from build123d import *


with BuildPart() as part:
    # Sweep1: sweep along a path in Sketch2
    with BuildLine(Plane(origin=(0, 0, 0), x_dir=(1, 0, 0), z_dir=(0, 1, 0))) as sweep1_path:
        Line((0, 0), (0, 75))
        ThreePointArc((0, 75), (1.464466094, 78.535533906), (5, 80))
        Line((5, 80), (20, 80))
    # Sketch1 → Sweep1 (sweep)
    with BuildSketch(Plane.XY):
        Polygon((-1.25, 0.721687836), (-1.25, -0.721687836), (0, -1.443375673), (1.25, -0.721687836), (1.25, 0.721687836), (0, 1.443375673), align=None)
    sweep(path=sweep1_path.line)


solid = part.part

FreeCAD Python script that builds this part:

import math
import FreeCAD as App
import Part
import Sketcher

V = App.Vector
Q = App.Units.Quantity

doc = App.newDocument("Part")
params = doc.addObject("Spreadsheet::Sheet", "Params")
for row, (alias, value) in enumerate([
    ("sketch2_radius", "5 mm"),
    ("sketch2_width", "15 mm"),
    ("sketch2_height", "75 mm"),
], start=1):
    params.set(f"A{row}", alias)
    params.set(f"B{row}", "=" + value)
    params.setAlias(f"B{row}", alias)

body = doc.addObject("PartDesign::Body", "Body")

# Sketch on XY plane
sketch1 = body.newObject("Sketcher::SketchObject", "Sketch")
sketch1.AttachmentSupport = (doc.getObject("XY_Plane"), [""])
sketch1.MapMode = "FlatFace"
sketch1.addGeometry([
    Part.LineSegment(V(-1.2, 0.7, 0), V(-1.2, -0.7, 0)),  # 0
    Part.LineSegment(V(-1.2, -0.7, 0), V(0, -1.4, 0)),  # 1
    Part.LineSegment(V(0, -1.4, 0), V(1.2, -0.7, 0)),  # 2
    Part.LineSegment(V(1.2, -0.7, 0), V(1.2, 0.7, 0)),  # 3
    Part.LineSegment(V(1.2, 0.7, 0), V(0, 1.4, 0)),  # 4
    Part.LineSegment(V(0, 1.4, 0), V(-1.2, 0.7, 0)),  # 5
], False)
sketch1.addConstraint([
    Sketcher.Constraint("Coincident", 0, 2, 1, 1),
    Sketcher.Constraint("Coincident", 1, 2, 2, 1),
    Sketcher.Constraint("Coincident", 2, 2, 3, 1),
    Sketcher.Constraint("Coincident", 3, 2, 4, 1),
    Sketcher.Constraint("Coincident", 4, 2, 5, 1),
    Sketcher.Constraint("Coincident", 5, 2, 0, 1),
    Sketcher.Constraint("Vertical", 0),
    Sketcher.Constraint("Vertical", 3),
    Sketcher.Constraint("Symmetric", 0, 2, 3, 2, -1, 1),
    Sketcher.Constraint("Symmetric", 1, 2, 4, 2, -1, 1),
    Sketcher.Constraint("PointOnObject", 1, 2, -2),
    Sketcher.Constraint("Parallel", 2, 5),
    Sketcher.Constraint("Horizontal", 0, 2, 2, 2),
    Sketcher.Constraint("Angle", 1, Q("-30 deg")),
    Sketcher.Constraint("DistanceX", 0, 2, 2, 2, 2.5),
    Sketcher.Constraint("DistanceY", 0, 2, 0, 1, 1.443376),
])

# Sketch on XZ plane
sketch2 = body.newObject("Sketcher::SketchObject", "Sketch001")
sketch2.AttachmentSupport = (doc.getObject("XZ_Plane"), [""])
sketch2.MapMode = "FlatFace"
sketch2.addGeometry([
    Part.LineSegment(V(0, 0, 0), V(0, -75, 0)),
    Part.ArcOfCircle(Part.Circle(V(5, -75, 0), V(0, 0, 1), 5), math.radians(180), math.radians(270)),
    Part.LineSegment(V(5, -80, 0), V(20, -80, 0)),
], False)
sketch2.addConstraint([
    Sketcher.Constraint("Tangent", 0, 2, 1, 1),
    Sketcher.Constraint("Tangent", 1, 2, 2, 1),
    Sketcher.Constraint("Vertical", 0),
    Sketcher.Constraint("Horizontal", 2),
    Sketcher.Constraint("Coincident", 0, 1, -1, 1),
    Sketcher.Constraint("Radius", 1, 5.0),
    Sketcher.Constraint("DistanceX", 2, 1, 2, 2, 15.0),
    Sketcher.Constraint("DistanceY", 0, 2, 0, 1, 75.0),
])
sketch2.setExpression("Constraints[5]", "Params.sketch2_radius")
sketch2.setExpression("Constraints[6]", "Params.sketch2_width")
sketch2.setExpression("Constraints[7]", "Params.sketch2_height")
doc.recompute()

additivepipe = body.newObject("PartDesign::AdditivePipe", "AdditivePipe")
additivepipe.Profile = sketch1
additivepipe.Spine = (sketch2, ["Edge1", "Edge2", "Edge3"])

doc.recompute()
